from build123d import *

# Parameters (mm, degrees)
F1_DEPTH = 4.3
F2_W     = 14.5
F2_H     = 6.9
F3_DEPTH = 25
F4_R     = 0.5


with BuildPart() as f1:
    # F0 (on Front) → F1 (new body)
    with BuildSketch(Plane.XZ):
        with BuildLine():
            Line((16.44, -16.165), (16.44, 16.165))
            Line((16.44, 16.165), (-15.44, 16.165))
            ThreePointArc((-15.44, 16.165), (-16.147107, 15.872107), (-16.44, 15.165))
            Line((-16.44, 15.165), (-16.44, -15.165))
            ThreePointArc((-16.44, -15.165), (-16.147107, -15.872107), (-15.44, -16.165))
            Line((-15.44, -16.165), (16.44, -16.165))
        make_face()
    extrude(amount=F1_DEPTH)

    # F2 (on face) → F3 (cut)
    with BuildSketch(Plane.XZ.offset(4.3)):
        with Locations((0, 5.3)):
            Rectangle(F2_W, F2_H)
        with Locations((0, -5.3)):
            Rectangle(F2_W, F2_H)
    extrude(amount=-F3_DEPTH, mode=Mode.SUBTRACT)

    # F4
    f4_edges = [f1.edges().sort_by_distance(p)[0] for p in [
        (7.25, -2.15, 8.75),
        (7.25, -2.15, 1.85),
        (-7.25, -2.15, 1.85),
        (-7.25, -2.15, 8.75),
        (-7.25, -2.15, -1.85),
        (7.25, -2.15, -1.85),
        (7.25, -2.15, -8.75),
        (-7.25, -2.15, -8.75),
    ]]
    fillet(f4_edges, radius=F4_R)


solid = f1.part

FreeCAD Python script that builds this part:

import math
import FreeCAD as App
import Part
import Sketcher
from FreeCAD import Vector


def edges_at(feature, points):
    """Names of the edges that pass closest to the given points."""
    edges = feature.Shape.Edges
    near = lambda p: min(range(len(edges)), key=lambda i: edges[i].distToShape(Part.Vertex(*p))[0])
    return sorted({f"Edge{near(p) + 1}" for p in points})

doc = App.newDocument("Part")
body = doc.addObject("PartDesign::Body", "Body")

# Sketch on XZ plane
sketch1 = body.newObject("Sketcher::SketchObject", "Sketch")
sketch1.AttachmentSupport = (doc.getObject("XZ_Plane"), [""])
sketch1.MapMode = "FlatFace"
sketch1.addGeometry([
    Part.LineSegment(Vector(16.4, -16.2, 0), Vector(16.4, 16.2, 0)),  # 0
    Part.LineSegment(Vector(16.4, 16.2, 0), Vector(-15.4, 16.2, 0)),  # 1
    Part.ArcOfCircle(Part.Circle(Vector(-15.4, 15.2, 0), Vector(0, 0, 1), 1), math.radians(90), math.radians(180)),  # 2
    Part.LineSegment(Vector(-16.4, 15.2, 0), Vector(-16.4, -15.2, 0)),  # 3
    Part.ArcOfCircle(Part.Circle(Vector(-15.4, -15.2, 0), Vector(0, 0, 1), 1), math.radians(180), math.radians(270)),  # 4
    Part.LineSegment(Vector(-15.4, -16.2, 0), Vector(16.4, -16.2, 0)),  # 5
], False)
sketch1.addConstraint([
    Sketcher.Constraint("Coincident", 0, 2, 1, 1),
    Sketcher.Constraint("Tangent", 1, 2, 2, 1),
    Sketcher.Constraint("Tangent", 2, 2, 3, 1),
    Sketcher.Constraint("Tangent", 3, 2, 4, 1),
    Sketcher.Constraint("Tangent", 4, 2, 5, 1),
    Sketcher.Constraint("Coincident", 5, 2, 0, 1),
    Sketcher.Constraint("Vertical", 0),
    Sketcher.Constraint("Horizontal", 1),
    Sketcher.Constraint("Vertical", 3),
    Sketcher.Constraint("Horizontal", 5),
    Sketcher.Constraint("Equal", 2, 4),
    Sketcher.Constraint("Radius", 2, 0.999999),
    Sketcher.Constraint("DistanceX", 1, 2, 1, 1, 31.88),
    Sketcher.Constraint("DistanceY", 0, 1, 0, 2, 32.33),
    Sketcher.Constraint("DistanceX", 2, 3, -1, 1, 15.440001),
    Sketcher.Constraint("DistanceY", -1, 1, 2, 3, 15.165001),
])
pad1 = body.newObject("PartDesign::Pad", "Pad")
pad1.Profile = sketch1
pad1.Length = 4.3

# Sketch on XZ plane
sketch2 = body.newObject("Sketcher::SketchObject", "Sketch001")
sketch2.AttachmentSupport = (doc.getObject("XZ_Plane"), [""])
sketch2.MapMode = "FlatFace"
sketch2.AttachmentOffset = App.Placement(Vector(0, 0, 4.3), App.Rotation())
sketch2.addGeometry([
    Part.LineSegment(Vector(-7, 9, 0), Vector(-7, 2, 0)),  # 0
    Part.LineSegment(Vector(-7, 2, 0), Vector(7, 2, 0)),  # 1
    Part.LineSegment(Vector(7, 2, 0), Vector(7, 9, 0)),  # 2
    Part.LineSegment(Vector(7, 9, 0), Vector(-7, 9, 0)),  # 3
    Part.LineSegment(Vector(-7, -2, 0), Vector(-7, -9, 0)),  # 4
    Part.LineSegment(Vector(-7, -9, 0), Vector(7, -9, 0)),  # 5
    Part.LineSegment(Vector(7, -9, 0), Vector(7, -2, 0)),  # 6
    Part.LineSegment(Vector(7, -2, 0), Vector(-7, -2, 0)),  # 7
], False)
sketch2.addConstraint([
    Sketcher.Constraint("Coincident", 0, 2, 1, 1),
    Sketcher.Constraint("Coincident", 1, 2, 2, 1),
    Sketcher.Constraint("Coincident", 2, 2, 3, 1),
    Sketcher.Constraint("Coincident", 3, 2, 0, 1),
    Sketcher.Constraint("Coincident", 4, 2, 5, 1),
    Sketcher.Constraint("Coincident", 5, 2, 6, 1),
    Sketcher.Constraint("Coincident", 6, 2, 7, 1),
    Sketcher.Constraint("Coincident", 7, 2, 4, 1),
    Sketcher.Constraint("Vertical", 0),
    Sketcher.Constraint("Horizontal", 1),
    Sketcher.Constraint("Vertical", 2),
    Sketcher.Constraint("Horizontal", 3),
    Sketcher.Constraint("Vertical", 4),
    Sketcher.Constraint("Horizontal", 5),
    Sketcher.Constraint("Vertical", 6),
    Sketcher.Constraint("Horizontal", 7),
    Sketcher.Constraint("Symmetric", 2, 2, 4, 2, -1, 1),
    Sketcher.Constraint("Symmetric", 0, 2, 6, 2, -1, 1),
    Sketcher.Constraint("Vertical", 3, 2, 4, 2),
    Sketcher.Constraint("DistanceX", 1, 1, 1, 2, 14.5),
    Sketcher.Constraint("DistanceY", 0, 2, 0, 1, 6.9),
    Sketcher.Constraint("DistanceY", 4, 2, 0, 2, 10.6),
])
pocket1 = body.newObject("PartDesign::Pocket", "Pocket")
pocket1.Profile = sketch2
pocket1.Length = 25
doc.recompute()

fillet = body.newObject("PartDesign::Fillet", "Fillet")
fillet.Base = (pocket1, edges_at(pocket1, [
    (7.25, -2.15, 8.75),
    (7.25, -2.15, 1.85),
    (-7.25, -2.15, 1.85),
    (-7.25, -2.15, 8.75),
    (-7.25, -2.15, -1.85),
    (7.25, -2.15, -1.85),
    (7.25, -2.15, -8.75),
    (-7.25, -2.15, -8.75),
]))
fillet.Radius = 0.5

doc.recompute()
